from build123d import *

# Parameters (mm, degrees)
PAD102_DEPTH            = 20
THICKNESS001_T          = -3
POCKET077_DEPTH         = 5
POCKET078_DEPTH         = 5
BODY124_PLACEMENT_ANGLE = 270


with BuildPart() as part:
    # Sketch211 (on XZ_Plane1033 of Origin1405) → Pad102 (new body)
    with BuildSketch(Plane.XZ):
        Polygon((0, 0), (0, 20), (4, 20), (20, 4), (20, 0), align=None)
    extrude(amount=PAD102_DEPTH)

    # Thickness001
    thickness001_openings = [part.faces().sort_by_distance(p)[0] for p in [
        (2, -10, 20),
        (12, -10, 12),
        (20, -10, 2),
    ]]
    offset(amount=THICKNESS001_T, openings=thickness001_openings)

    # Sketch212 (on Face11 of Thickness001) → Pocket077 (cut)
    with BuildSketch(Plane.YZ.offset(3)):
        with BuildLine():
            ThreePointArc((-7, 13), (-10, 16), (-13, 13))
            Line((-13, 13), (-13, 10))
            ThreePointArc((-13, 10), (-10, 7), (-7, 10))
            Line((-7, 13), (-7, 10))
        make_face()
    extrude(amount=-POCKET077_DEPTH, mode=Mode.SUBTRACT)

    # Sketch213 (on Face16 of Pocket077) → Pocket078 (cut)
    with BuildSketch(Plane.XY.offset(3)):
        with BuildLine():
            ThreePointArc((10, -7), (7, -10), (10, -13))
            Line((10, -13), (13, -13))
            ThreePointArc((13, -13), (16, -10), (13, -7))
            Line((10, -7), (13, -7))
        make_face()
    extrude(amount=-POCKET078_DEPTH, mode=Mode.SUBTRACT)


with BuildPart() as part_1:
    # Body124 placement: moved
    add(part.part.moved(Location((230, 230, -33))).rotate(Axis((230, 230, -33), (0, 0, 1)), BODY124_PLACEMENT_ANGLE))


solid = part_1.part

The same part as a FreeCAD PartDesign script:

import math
import FreeCAD as App
import Part
import Sketcher


def faces_at(feature, points):
    """Names of the faces that lie closest to the given points."""
    faces = feature.Shape.Faces
    near = lambda p: min(range(len(faces)), key=lambda i: faces[i].distToShape(Part.Vertex(*p))[0])
    return sorted({f"Face{near(p) + 1}" for p in points})

doc = App.newDocument("Part")
body = doc.addObject("PartDesign::Body", "Body")

sketch1 = body.newObject("Sketcher::SketchObject", "Sketch")
sketch1.AttachmentSupport = (doc.getObject("XZ_Plane"), [""])
sketch1.MapMode = "FlatFace"
sketch1.addGeometry([
    Part.LineSegment(App.Vector(0, 20, 0), App.Vector(0, 0, 0)),
    Part.LineSegment(App.Vector(0, 0, 0), App.Vector(20, 0, 0)),
    Part.LineSegment(App.Vector(20, 0, 0), App.Vector(20, 4, 0)),
    Part.LineSegment(App.Vector(20, 4, 0), App.Vector(4, 20, 0)),
    Part.LineSegment(App.Vector(4, 20, 0), App.Vector(0, 20, 0)),
], False)
sketch1.addConstraint([
    Sketcher.Constraint("Coincident", 0, 2, 1, 1),
    Sketcher.Constraint("Coincident", 1, 2, 2, 1),
    Sketcher.Constraint("Coincident", 2, 2, 3, 1),
    Sketcher.Constraint("Coincident", 3, 2, 4, 1),
    Sketcher.Constraint("Coincident", 4, 2, 0, 1),
    Sketcher.Constraint("Vertical", 0),
    Sketcher.Constraint("Horizontal", 1),
    Sketcher.Constraint("Vertical", 2),
    Sketcher.Constraint("Horizontal", 4),
    Sketcher.Constraint("Coincident", 0, 2, -1, 1),
    Sketcher.Constraint("Equal", 1, 0),
    Sketcher.Constraint("Equal", 4, 2),
    Sketcher.Constraint("DistanceX", 1, 1, 1, 2, 20.0),
    Sketcher.Constraint("DistanceX", 4, 2, 4, 1, 4.0),
])
pad1 = body.newObject("PartDesign::Pad", "Pad")
pad1.Profile = sketch1
pad1.Length = 20
doc.recompute()

thickness = body.newObject("PartDesign::Thickness", "Thickness")
thickness.Base = (pad1, faces_at(pad1, [(2, -10, 20), (12, -10, 12), (20, -10, 2)]))
thickness.Value = 3
thickness.Reversed = True
thickness.Join = "Arc"

sketch2 = body.newObject("Sketcher::SketchObject", "Sketch001")
sketch2.AttachmentSupport = (doc.getObject("YZ_Plane"), [""])
sketch2.MapMode = "FlatFace"
sketch2.AttachmentOffset = App.Placement(App.Vector(0, 0, 3), App.Rotation())
sketch2.addGeometry([
    Part.ArcOfCircle(Part.Circle(App.Vector(-10, 13, 0), App.Vector(0, 0, 1), 3), math.radians(0), math.radians(180)),
    Part.LineSegment(App.Vector(-13, 13, 0), App.Vector(-13, 10, 0)),
    Part.ArcOfCircle(Part.Circle(App.Vector(-10, 10, 0), App.Vector(0, 0, 1), 3), math.radians(180), math.radians(360)),
    Part.LineSegment(App.Vector(-7, 10, 0), App.Vector(-7, 13, 0)),
], False)
sketch2.addConstraint([
    Sketcher.Constraint("Tangent", 0, 2, 1, 1),
    Sketcher.Constraint("Tangent", 1, 2, 2, 1),
    Sketcher.Constraint("Tangent", 2, 2, 3, 1),
    Sketcher.Constraint("Tangent", 3, 2, 0, 1),
    Sketcher.Constraint("Vertical", 1),
    Sketcher.Constraint("Vertical", 3),
    Sketcher.Constraint("Radius", 0, 3.0),
    Sketcher.Constraint("DistanceY", 1, 2, 1, 1, 3.0),
    Sketcher.Constraint("DistanceX", 0, 3, -1, 1, 10.0),
    Sketcher.Constraint("DistanceY", -1, 1, 0, 3, 13.0),
])
pocket1 = body.newObject("PartDesign::Pocket", "Pocket")
pocket1.Profile = sketch2
pocket1.Length = 5

sketch3 = body.newObject("Sketcher::SketchObject", "Sketch002")
sketch3.AttachmentSupport = (doc.getObject("XY_Plane"), [""])
sketch3.MapMode = "FlatFace"
sketch3.AttachmentOffset = App.Placement(App.Vector(0, 0, 3), App.Rotation())
sketch3.addGeometry([
    Part.ArcOfCircle(Part.Circle(App.Vector(10, -10, 0), App.Vector(0, 0, 1), 3), math.radians(90), math.radians(270)),
    Part.LineSegment(App.Vector(10, -13, 0), App.Vector(13, -13, 0)),
    Part.ArcOfCircle(Part.Circle(App.Vector(13, -10, 0), App.Vector(0, 0, 1), 3), math.radians(-90), math.radians(90)),
    Part.LineSegment(App.Vector(13, -7, 0), App.Vector(10, -7, 0)),
], False)
sketch3.addConstraint([
    Sketcher.Constraint("Tangent", 0, 2, 1, 1),
    Sketcher.Constraint("Tangent", 1, 2, 2, 1),
    Sketcher.Constraint("Tangent", 2, 2, 3, 1),
    Sketcher.Constraint("Tangent", 3, 2, 0, 1),
    Sketcher.Constraint("Horizontal", 1),
    Sketcher.Constraint("Horizontal", 3),
    Sketcher.Constraint("Radius", 0, 3.0),
    Sketcher.Constraint("DistanceX", 1, 1, 1, 2, 3.0),
    Sketcher.Constraint("DistanceX", -1, 1, 0, 3, 10.0),
    Sketcher.Constraint("DistanceY", 0, 3, -1, 1, 10.0),
])
pocket2 = body.newObject("PartDesign::Pocket", "Pocket001")
pocket2.Profile = sketch3
pocket2.Length = 5
body2 = doc.addObject("PartDesign::Body", "Body001")
doc.recompute()

body.Placement = App.Placement(App.Vector(230, 230, -33), App.Rotation(App.Vector(0, 0, 1), 270))
boolean = body2.newObject("PartDesign::Boolean", "Boolean")
boolean.Type = "Fuse"
boolean.addObjects([body])

doc.recompute()
